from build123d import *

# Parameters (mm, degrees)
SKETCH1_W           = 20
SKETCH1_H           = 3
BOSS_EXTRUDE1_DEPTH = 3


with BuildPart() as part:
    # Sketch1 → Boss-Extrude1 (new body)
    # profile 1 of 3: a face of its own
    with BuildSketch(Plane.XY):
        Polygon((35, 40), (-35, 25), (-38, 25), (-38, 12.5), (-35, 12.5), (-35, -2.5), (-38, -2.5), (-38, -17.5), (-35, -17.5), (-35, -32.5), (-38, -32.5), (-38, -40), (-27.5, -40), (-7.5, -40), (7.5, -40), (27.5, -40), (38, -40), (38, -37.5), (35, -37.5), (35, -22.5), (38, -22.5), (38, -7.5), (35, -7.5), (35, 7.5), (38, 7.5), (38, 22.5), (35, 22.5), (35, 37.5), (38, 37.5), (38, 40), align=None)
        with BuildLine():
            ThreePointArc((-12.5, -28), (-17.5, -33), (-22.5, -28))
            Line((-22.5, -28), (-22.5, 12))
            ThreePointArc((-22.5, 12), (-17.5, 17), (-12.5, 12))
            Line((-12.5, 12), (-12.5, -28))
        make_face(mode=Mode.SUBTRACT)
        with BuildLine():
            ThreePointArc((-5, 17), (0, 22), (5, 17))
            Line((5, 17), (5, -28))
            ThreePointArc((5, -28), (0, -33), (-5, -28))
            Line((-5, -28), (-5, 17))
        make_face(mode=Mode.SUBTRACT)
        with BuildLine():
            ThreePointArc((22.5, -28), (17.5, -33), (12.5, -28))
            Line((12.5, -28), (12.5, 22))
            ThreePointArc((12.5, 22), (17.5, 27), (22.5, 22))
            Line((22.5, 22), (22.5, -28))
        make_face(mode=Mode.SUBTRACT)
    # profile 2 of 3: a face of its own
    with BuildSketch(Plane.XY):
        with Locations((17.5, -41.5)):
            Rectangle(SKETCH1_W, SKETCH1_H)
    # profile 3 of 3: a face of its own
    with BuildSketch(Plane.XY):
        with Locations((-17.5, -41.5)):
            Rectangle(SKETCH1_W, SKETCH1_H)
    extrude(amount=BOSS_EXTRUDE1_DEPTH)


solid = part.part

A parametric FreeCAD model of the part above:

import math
import FreeCAD as App
import Part
import Sketcher

doc = App.newDocument("Part")
body = doc.addObject("PartDesign::Body", "Body")

# Sketch on XY plane
sketch1 = doc.addObject("Sketcher::SketchObject", "Sketch")
body.addObject(sketch1)
sketch1.AttachmentSupport = (doc.XY_Plane, [""])
sketch1.MapMode = "FlatFace"
sketch1.addGeometry([
    Part.LineSegment(App.Vector(35, 40, 0), App.Vector(-35, 25, 0)),  # 0
    Part.LineSegment(App.Vector(-35, 25, 0), App.Vector(-38, 25, 0)),  # 1
    Part.LineSegment(App.Vector(-38, 25, 0), App.Vector(-38, 12.5, 0)),  # 2
    Part.LineSegment(App.Vector(-38, 12.5, 0), App.Vector(-35, 12.5, 0)),  # 3
    Part.LineSegment(App.Vector(-35, 12.5, 0), App.Vector(-35, -2.5, 0)),  # 4
    Part.LineSegment(App.Vector(-35, -2.5, 0), App.Vector(-38, -2.5, 0)),  # 5
    Part.LineSegment(App.Vector(-38, -2.5, 0), App.Vector(-38, -17.5, 0)),  # 6
    Part.LineSegment(App.Vector(-38, -17.5, 0), App.Vector(-35, -17.5, 0)),  # 7
    Part.LineSegment(App.Vector(-35, -17.5, 0), App.Vector(-35, -32.5, 0)),  # 8
    Part.LineSegment(App.Vector(-35, -32.5, 0), App.Vector(-38, -32.5, 0)),  # 9
    Part.LineSegment(App.Vector(-38, -32.5, 0), App.Vector(-38, -40, 0)),  # 10
    Part.LineSegment(App.Vector(-38, -40, 0), App.Vector(-27.5, -40, 0)),  # 11
    Part.LineSegment(App.Vector(-27.5, -40, 0), App.Vector(-27.5, -43, 0)),  # 12
    Part.LineSegment(App.Vector(-27.5, -43, 0), App.Vector(-7.5, -43, 0)),  # 13
    Part.LineSegment(App.Vector(-7.5, -43, 0), App.Vector(-7.5, -40, 0)),  # 14
    Part.LineSegment(App.Vector(-7.5, -40, 0), App.Vector(7.5, -40, 0)),  # 15
    Part.LineSegment(App.Vector(7.5, -40, 0), App.Vector(7.5, -43, 0)),  # 16
    Part.LineSegment(App.Vector(7.5, -43, 0), App.Vector(27.5, -43, 0)),  # 17
    Part.LineSegment(App.Vector(27.5, -43, 0), App.Vector(27.5, -40, 0)),  # 18
    Part.LineSegment(App.Vector(27.5, -40, 0), App.Vector(38, -40, 0)),  # 19
    Part.LineSegment(App.Vector(38, -40, 0), App.Vector(38, -37.5, 0)),  # 20
    Part.LineSegment(App.Vector(38, -37.5, 0), App.Vector(35, -37.5, 0)),  # 21
    Part.LineSegment(App.Vector(35, -37.5, 0), App.Vector(35, -22.5, 0)),  # 22
    Part.LineSegment(App.Vector(35, -22.5, 0), App.Vector(38, -22.5, 0)),  # 23
    Part.LineSegment(App.Vector(38, -22.5, 0), App.Vector(38, -7.5, 0)),  # 24
    Part.LineSegment(App.Vector(38, -7.5, 0), App.Vector(35, -7.5, 0)),  # 25
    Part.LineSegment(App.Vector(35, -7.5, 0), App.Vector(35, 7.5, 0)),  # 26
    Part.LineSegment(App.Vector(35, 7.5, 0), App.Vector(38, 7.5, 0)),  # 27
    Part.LineSegment(App.Vector(38, 7.5, 0), App.Vector(38, 22.5, 0)),  # 28
    Part.LineSegment(App.Vector(38, 22.5, 0), App.Vector(35, 22.5, 0)),  # 29
    Part.LineSegment(App.Vector(35, 22.5, 0), App.Vector(35, 37.5, 0)),  # 30
    Part.LineSegment(App.Vector(35, 37.5, 0), App.Vector(38, 37.5, 0)),  # 31
    Part.LineSegment(App.Vector(38, 37.5, 0), App.Vector(38, 40, 0)),  # 32
    Part.LineSegment(App.Vector(38, 40, 0), App.Vector(35, 40, 0)),  # 33
    Part.LineSegment(App.Vector(-12.5, 12, 0), App.Vector(-12.5, -28, 0)),  # 34
    Part.ArcOfCircle(Part.Circle(App.Vector(-17.5, -28, 0), App.Vector(0, 0, 1), 5), math.radians(180), math.radians(360)),  # 35
    Part.LineSegment(App.Vector(-22.5, -28, 0), App.Vector(-22.5, 12, 0)),  # 36
    Part.ArcOfCircle(Part.Circle(App.Vector(-17.5, 12, 0), App.Vector(0, 0, 1), 5), math.radians(0), math.radians(180)),  # 37
    Part.LineSegment(App.Vector(-5, -28, 0), App.Vector(-5, 17, 0)),  # 38
    Part.ArcOfCircle(Part.Circle(App.Vector(0, 17, 0), App.Vector(0, 0, 1), 5), math.radians(0), math.radians(180)),  # 39
    Part.LineSegment(App.Vector(5, 17, 0), App.Vector(5, -28, 0)),  # 40
    Part.ArcOfCircle(Part.Circle(App.Vector(0, -28, 0), App.Vector(0, 0, 1), 5), math.radians(180), math.radians(360)),  # 41
    Part.LineSegment(App.Vector(22.5, 22, 0), App.Vector(22.5, -28, 0)),  # 42
    Part.ArcOfCircle(Part.Circle(App.Vector(17.5, -28, 0), App.Vector(0, 0, 1), 5), math.radians(180), math.radians(360)),  # 43
    Part.LineSegment(App.Vector(12.5, -28, 0), App.Vector(12.5, 22, 0)),  # 44
    Part.ArcOfCircle(Part.Circle(App.Vector(17.5, 22, 0), App.Vector(0, 0, 1), 5), math.radians(0), math.radians(180)),  # 45
], False)
sketch1.addConstraint([
    Sketcher.Constraint("Coincident", 0, 2, 1, 1),
    Sketcher.Constraint("Coincident", 1, 2, 2, 1),
    Sketcher.Constraint("Coincident", 2, 2, 3, 1),
    Sketcher.Constraint("Coincident", 3, 2, 4, 1),
    Sketcher.Constraint("Coincident", 4, 2, 5, 1),
    Sketcher.Constraint("Coincident", 5, 2, 6, 1),
    Sketcher.Constraint("Coincident", 6, 2, 7, 1),
    Sketcher.Constraint("Coincident", 7, 2, 8, 1),
    Sketcher.Constraint("Coincident", 8, 2, 9, 1),
    Sketcher.Constraint("Coincident", 9, 2, 10, 1),
    Sketcher.Constraint("Coincident", 10, 2, 11, 1),
    Sketcher.Constraint("Coincident", 11, 2, 12, 1),
    Sketcher.Constraint("Coincident", 12, 2, 13, 1),
    Sketcher.Constraint("Coincident", 13, 2, 14, 1),
    Sketcher.Constraint("Coincident", 14, 2, 15, 1),
    Sketcher.Constraint("Coincident", 15, 2, 16, 1),
    Sketcher.Constraint("Coincident", 16, 2, 17, 1),
    Sketcher.Constraint("Coincident", 17, 2, 18, 1),
    Sketcher.Constraint("Coincident", 18, 2, 19, 1),
    Sketcher.Constraint("Coincident", 19, 2, 20, 1),
    Sketcher.Constraint("Coincident", 20, 2, 21, 1),
    Sketcher.Constraint("Coincident", 21, 2, 22, 1),
    Sketcher.Constraint("Coincident", 22, 2, 23, 1),
    Sketcher.Constraint("Coincident", 23, 2, 24, 1),
    Sketcher.Constraint("Coincident", 24, 2, 25, 1),
    Sketcher.Constraint("Coincident", 25, 2, 26, 1),
    Sketcher.Constraint("Coincident", 26, 2, 27, 1),
    Sketcher.Constraint("Coincident", 27, 2, 28, 1),
    Sketcher.Constraint("Coincident", 28, 2, 29, 1),
    Sketcher.Constraint("Coincident", 29, 2, 30, 1),
    Sketcher.Constraint("Coincident", 30, 2, 31, 1),
    Sketcher.Constraint("Coincident", 31, 2, 32, 1),
    Sketcher.Constraint("Coincident", 32, 2, 33, 1),
    Sketcher.Constraint("Coincident", 33, 2, 0, 1),
    Sketcher.Constraint("Tangent", 34, 2, 35, 2),
    Sketcher.Constraint("Tangent", 35, 1, 36, 1),
    Sketcher.Constraint("Tangent", 36, 2, 37, 2),
    Sketcher.Constraint("Tangent", 37, 1, 34, 1),
    Sketcher.Constraint("Tangent", 38, 2, 39, 2),
    Sketcher.Constraint("Tangent", 39, 1, 40, 1),
    Sketcher.Constraint("Tangent", 40, 2, 41, 2),
    Sketcher.Constraint("Tangent", 41, 1, 38, 1),
    Sketcher.Constraint("Tangent", 42, 2, 43, 2),
    Sketcher.Constraint("Tangent", 43, 1, 44, 1),
    Sketcher.Constraint("Tangent", 44, 2, 45, 2),
    Sketcher.Constraint("Tangent", 45, 1, 42, 1),
    Sketcher.Constraint("Horizontal", 1),
    Sketcher.Constraint("Vertical", 2),
    Sketcher.Constraint("Horizontal", 3),
    Sketcher.Constraint("Vertical", 4),
    Sketcher.Constraint("Horizontal", 5),
    Sketcher.Constraint("Vertical", 6),
    Sketcher.Constraint("Horizontal", 7),
    Sketcher.Constraint("Vertical", 8),
    Sketcher.Constraint("Horizontal", 9),
    Sketcher.Constraint("Vertical", 10),
    Sketcher.Constraint("Horizontal", 11),
    Sketcher.Constraint("Vertical", 12),
    Sketcher.Constraint("Horizontal", 13),
    Sketcher.Constraint("Vertical", 14),
    Sketcher.Constraint("Horizontal", 15),
    Sketcher.Constraint("Vertical", 16),
    Sketcher.Constraint("Horizontal", 17),
    Sketcher.Constraint("Vertical", 18),
    Sketcher.Constraint("Horizontal", 19),
    Sketcher.Constraint("Vertical", 20),
    Sketcher.Constraint("Horizontal", 21),
    Sketcher.Constraint("Vertical", 22),
    Sketcher.Constraint("Horizontal", 23),
    Sketcher.Constraint("Vertical", 24),
    Sketcher.Constraint("Horizontal", 25),
    Sketcher.Constraint("Vertical", 26),
    Sketcher.Constraint("Horizontal", 27),
    Sketcher.Constraint("Vertical", 28),
    Sketcher.Constraint("Horizontal", 29),
    Sketcher.Constraint("Vertical", 30),
    Sketcher.Constraint("Horizontal", 31),
    Sketcher.Constraint("Vertical", 32),
    Sketcher.Constraint("Horizontal", 33),
    Sketcher.Constraint("Vertical", 34),
    Sketcher.Constraint("Vertical", 36),
    Sketcher.Constraint("Vertical", 38),
    Sketcher.Constraint("Vertical", 40),
    Sketcher.Constraint("Vertical", 42),
    Sketcher.Constraint("Vertical", 44),
    Sketcher.Constraint("Equal", 37, 39),
    Sketcher.Constraint("Equal", 41, 43),
    Sketcher.Constraint("Symmetric", 10, 2, 32, 2, -1, 1),
    Sketcher.Constraint("Symmetric", 35, 3, 43, 3, -2),
    Sketcher.Constraint("Symmetric", 13, 2, 16, 2, -2),
    Sketcher.Constraint("Symmetric", 11, 2, 18, 2, -2),
    Sketcher.Constraint("Symmetric", 24, 2, 27, 2, -1),
    Sketcher.Constraint("Symmetric", 22, 2, 29, 2, -1),
    Sketcher.Constraint("Symmetric", 20, 2, 31, 2, -1),
    Sketcher.Constraint("PointOnObject", 39, 3, -2),
    Sketcher.Constraint("Horizontal", 35, 3, 41, 3),
    Sketcher.Constraint("Horizontal", 11, 2, 14, 2),
    Sketcher.Constraint("Vertical", 0, 2, 3, 2),
    Sketcher.Constraint("Vertical", 2, 2, 5, 2),
    Sketcher.Constraint("Vertical", 4, 2, 7, 2),
    Sketcher.Constraint("Vertical", 6, 2, 9, 2),
    Sketcher.Constraint("Vertical", 20, 2, 23, 2),
    Sketcher.Constraint("Vertical", 22, 2, 25, 2),
    Sketcher.Constraint("Vertical", 30, 2, 33, 2),
    Sketcher.Constraint("Equal", 9, 21),
    Sketcher.Constraint("Equal", 15, 4),
    Sketcher.Constraint("Equal", 4, 6),
    Sketcher.Constraint("Equal", 6, 8),
    Sketcher.Constraint("Equal", 33, 12),
    Sketcher.Constraint("Equal", 8, 22),
    Sketcher.Constraint("Equal", 22, 24),
    Sketcher.Constraint("Equal", 24, 26),
    Sketcher.Constraint("Radius", 35, 5.0),
    Sketcher.Constraint("DistanceX", 1, 2, 1, 1, 3.0),
    Sketcher.Constraint("DistanceX", 13, 1, 13, 2, 20.0),
    Sketcher.Constraint("DistanceX", 15, 1, 15, 2, 15.0),
    Sketcher.Constraint("DistanceY", 34, 2, 34, 1, 40.0),
    Sketcher.Constraint("DistanceY", 38, 1, 38, 2, 45.0),
    Sketcher.Constraint("DistanceY", 42, 2, 42, 1, 50.0),
    Sketcher.Constraint("DistanceX", 11, 1, 11, 2, 10.5),
    Sketcher.Constraint("DistanceY", 2, 2, 2, 1, 12.5),
    Sketcher.Constraint("DistanceY", 10, 2, 10, 1, 7.5),
    Sketcher.Constraint("DistanceY", 20, 1, 20, 2, 2.5),
    Sketcher.Constraint("DistanceY", 35, 3, -1, 1, 28.0),
    Sketcher.Constraint("DistanceX", 35, 3, 43, 3, 35.0),
])
pad1 = doc.addObject("PartDesign::Pad", "Pad")
body.addObject(pad1)
pad1.Profile = sketch1
pad1.Length = 3

doc.recompute()
